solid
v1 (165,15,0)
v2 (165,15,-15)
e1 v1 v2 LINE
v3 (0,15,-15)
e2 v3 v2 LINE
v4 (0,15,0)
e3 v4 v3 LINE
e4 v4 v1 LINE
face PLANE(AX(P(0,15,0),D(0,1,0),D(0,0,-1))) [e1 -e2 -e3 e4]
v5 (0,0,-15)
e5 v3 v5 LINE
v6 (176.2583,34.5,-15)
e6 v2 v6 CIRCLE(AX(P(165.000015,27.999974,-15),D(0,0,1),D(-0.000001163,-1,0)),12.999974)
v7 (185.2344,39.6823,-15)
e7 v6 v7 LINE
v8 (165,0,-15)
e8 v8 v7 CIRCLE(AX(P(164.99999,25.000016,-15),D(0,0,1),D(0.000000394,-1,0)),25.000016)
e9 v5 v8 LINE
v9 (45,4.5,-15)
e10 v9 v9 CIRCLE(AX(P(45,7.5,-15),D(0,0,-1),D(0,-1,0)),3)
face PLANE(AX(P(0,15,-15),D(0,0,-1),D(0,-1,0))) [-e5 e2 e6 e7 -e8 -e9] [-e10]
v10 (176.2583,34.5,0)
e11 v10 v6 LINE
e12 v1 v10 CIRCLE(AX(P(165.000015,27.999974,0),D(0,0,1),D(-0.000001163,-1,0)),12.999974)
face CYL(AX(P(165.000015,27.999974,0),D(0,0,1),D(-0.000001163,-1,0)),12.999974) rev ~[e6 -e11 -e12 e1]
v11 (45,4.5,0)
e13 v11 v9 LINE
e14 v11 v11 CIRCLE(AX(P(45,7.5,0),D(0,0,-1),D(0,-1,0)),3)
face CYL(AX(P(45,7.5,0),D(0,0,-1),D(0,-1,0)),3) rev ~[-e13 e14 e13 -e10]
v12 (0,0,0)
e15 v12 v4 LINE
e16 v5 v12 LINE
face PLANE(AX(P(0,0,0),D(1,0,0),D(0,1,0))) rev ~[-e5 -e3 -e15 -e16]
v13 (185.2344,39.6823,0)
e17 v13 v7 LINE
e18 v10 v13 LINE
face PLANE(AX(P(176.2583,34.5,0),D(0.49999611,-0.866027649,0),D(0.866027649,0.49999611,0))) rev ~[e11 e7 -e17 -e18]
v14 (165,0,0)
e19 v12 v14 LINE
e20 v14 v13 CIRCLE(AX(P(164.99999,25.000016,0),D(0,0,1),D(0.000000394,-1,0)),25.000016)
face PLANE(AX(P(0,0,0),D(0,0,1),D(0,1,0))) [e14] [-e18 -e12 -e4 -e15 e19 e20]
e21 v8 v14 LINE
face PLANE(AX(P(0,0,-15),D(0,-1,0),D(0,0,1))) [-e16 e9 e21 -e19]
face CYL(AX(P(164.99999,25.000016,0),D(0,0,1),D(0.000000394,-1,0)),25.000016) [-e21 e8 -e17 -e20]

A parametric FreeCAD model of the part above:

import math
import FreeCAD as App
import Part
import Sketcher
Q = App.Units.Quantity

doc = App.newDocument("Part")
body = doc.addObject("PartDesign::Body", "Body")

# Sketch on YZ plane
sketch1 = doc.addObject("Sketcher::SketchObject", "Sketch")
body.addObject(sketch1)
sketch1.AttachmentSupport = (doc.YZ_Plane, [""])
sketch1.MapMode = "FlatFace"
sketch1.addGeometry([
    Part.LineSegment(App.Vector(15, 0, 0), App.Vector(0, 0, 0)),
    Part.LineSegment(App.Vector(0, 0, 0), App.Vector(0, -15, 0)),
    Part.LineSegment(App.Vector(0, -15, 0), App.Vector(15, -15, 0)),
    Part.LineSegment(App.Vector(15, -15, 0), App.Vector(15, 0, 0)),
], False)
sketch1.addConstraint([
    Sketcher.Constraint("Coincident", 0, 2, 1, 1),
    Sketcher.Constraint("Coincident", 1, 2, 2, 1),
    Sketcher.Constraint("Coincident", 2, 2, 3, 1),
    Sketcher.Constraint("Coincident", 3, 2, 0, 1),
    Sketcher.Constraint("Horizontal", 0),
    Sketcher.Constraint("Vertical", 1),
    Sketcher.Constraint("Horizontal", 2),
    Sketcher.Constraint("Vertical", 3),
    Sketcher.Constraint("Coincident", 0, 2, -1, 1),
    Sketcher.Constraint("Equal", 2, 1),
    Sketcher.Constraint("DistanceX", 0, 2, 0, 1, Q("15 mm")),
])
pad1 = doc.addObject("PartDesign::Pad", "Pad")
body.addObject(pad1)
pad1.Profile = sketch1
pad1.Length = 165

# Sketch on XY plane
sketch2 = doc.addObject("Sketcher::SketchObject", "Sketch001")
body.addObject(sketch2)
sketch2.AttachmentSupport = (doc.XY_Plane, [""])
sketch2.MapMode = "FlatFace"
sketch2.addGeometry([
    Part.ArcOfCircle(Part.Circle(App.Vector(165, 28, 0), App.Vector(0, 0, 1), 13), math.radians(-90), math.radians(30)),
    Part.LineSegment(App.Vector(165, 15, 0), App.Vector(165, 0, 0)),
    Part.ArcOfCircle(Part.Circle(App.Vector(165, 25, 0), App.Vector(0, 0, 1), 25), math.radians(-90), math.radians(36)),
    Part.LineSegment(App.Vector(185, 40, 0), App.Vector(176, 34, 0)),
], False)
sketch2.addConstraint([
    Sketcher.Constraint("Coincident", 0, 1, 1, 1),
    Sketcher.Constraint("Coincident", 1, 2, 2, 1),
    Sketcher.Constraint("Coincident", 2, 2, 3, 1),
    Sketcher.Constraint("Coincident", 3, 2, 0, 2),
    Sketcher.Constraint("Vertical", 1),
    Sketcher.Constraint("PointOnObject", 1, 2, -1),
    Sketcher.Constraint("Vertical", 0, 3, 2, 3),
    Sketcher.Constraint("Vertical", 2, 3, 0, 1),
    Sketcher.Constraint("Radius", 0, Q("13 mm")),
    Sketcher.Constraint("Radius", 2, Q("25 mm")),
    Sketcher.Constraint("DistanceY", 1, 2, 1, 1, Q("15 mm")),
    Sketcher.Constraint("Angle", 3, Q("-150.0003 deg")),
    Sketcher.Constraint("DistanceX", -1, 1, 0, 3, Q("165 mm")),
    Sketcher.Constraint("DistanceY", -1, 1, 3, 2, Q("34.5 mm")),
])
pad2 = doc.addObject("PartDesign::Pad", "Pad001")
body.addObject(pad2)
pad2.Profile = sketch2
pad2.Length = 15
pad2.Reversed = True

# Sketch on XY plane
sketch3 = doc.addObject("Sketcher::SketchObject", "Sketch002")
body.addObject(sketch3)
sketch3.AttachmentSupport = (doc.XY_Plane, [""])
sketch3.MapMode = "FlatFace"
sketch3.addGeometry(Part.Circle(App.Vector(45, 7.5, 0), App.Vector(0, 0, 1), 3), False)
sketch3.addConstraint([
    Sketcher.Constraint("Diameter", 0, Q("6 mm")),
    Sketcher.Constraint("DistanceX", -1, 1, 0, 3, Q("45 mm")),
    Sketcher.Constraint("DistanceY", -1, 1, 0, 3, Q("7.5 mm")),
])
doc.recompute()
hole = doc.addObject("PartDesign::Hole", "Hole")
body.addObject(hole)
hole.Profile = sketch3
hole.ThreadType = "None"
hole.Diameter = 6
hole.DepthType = "ThroughAll"

doc.recompute()
